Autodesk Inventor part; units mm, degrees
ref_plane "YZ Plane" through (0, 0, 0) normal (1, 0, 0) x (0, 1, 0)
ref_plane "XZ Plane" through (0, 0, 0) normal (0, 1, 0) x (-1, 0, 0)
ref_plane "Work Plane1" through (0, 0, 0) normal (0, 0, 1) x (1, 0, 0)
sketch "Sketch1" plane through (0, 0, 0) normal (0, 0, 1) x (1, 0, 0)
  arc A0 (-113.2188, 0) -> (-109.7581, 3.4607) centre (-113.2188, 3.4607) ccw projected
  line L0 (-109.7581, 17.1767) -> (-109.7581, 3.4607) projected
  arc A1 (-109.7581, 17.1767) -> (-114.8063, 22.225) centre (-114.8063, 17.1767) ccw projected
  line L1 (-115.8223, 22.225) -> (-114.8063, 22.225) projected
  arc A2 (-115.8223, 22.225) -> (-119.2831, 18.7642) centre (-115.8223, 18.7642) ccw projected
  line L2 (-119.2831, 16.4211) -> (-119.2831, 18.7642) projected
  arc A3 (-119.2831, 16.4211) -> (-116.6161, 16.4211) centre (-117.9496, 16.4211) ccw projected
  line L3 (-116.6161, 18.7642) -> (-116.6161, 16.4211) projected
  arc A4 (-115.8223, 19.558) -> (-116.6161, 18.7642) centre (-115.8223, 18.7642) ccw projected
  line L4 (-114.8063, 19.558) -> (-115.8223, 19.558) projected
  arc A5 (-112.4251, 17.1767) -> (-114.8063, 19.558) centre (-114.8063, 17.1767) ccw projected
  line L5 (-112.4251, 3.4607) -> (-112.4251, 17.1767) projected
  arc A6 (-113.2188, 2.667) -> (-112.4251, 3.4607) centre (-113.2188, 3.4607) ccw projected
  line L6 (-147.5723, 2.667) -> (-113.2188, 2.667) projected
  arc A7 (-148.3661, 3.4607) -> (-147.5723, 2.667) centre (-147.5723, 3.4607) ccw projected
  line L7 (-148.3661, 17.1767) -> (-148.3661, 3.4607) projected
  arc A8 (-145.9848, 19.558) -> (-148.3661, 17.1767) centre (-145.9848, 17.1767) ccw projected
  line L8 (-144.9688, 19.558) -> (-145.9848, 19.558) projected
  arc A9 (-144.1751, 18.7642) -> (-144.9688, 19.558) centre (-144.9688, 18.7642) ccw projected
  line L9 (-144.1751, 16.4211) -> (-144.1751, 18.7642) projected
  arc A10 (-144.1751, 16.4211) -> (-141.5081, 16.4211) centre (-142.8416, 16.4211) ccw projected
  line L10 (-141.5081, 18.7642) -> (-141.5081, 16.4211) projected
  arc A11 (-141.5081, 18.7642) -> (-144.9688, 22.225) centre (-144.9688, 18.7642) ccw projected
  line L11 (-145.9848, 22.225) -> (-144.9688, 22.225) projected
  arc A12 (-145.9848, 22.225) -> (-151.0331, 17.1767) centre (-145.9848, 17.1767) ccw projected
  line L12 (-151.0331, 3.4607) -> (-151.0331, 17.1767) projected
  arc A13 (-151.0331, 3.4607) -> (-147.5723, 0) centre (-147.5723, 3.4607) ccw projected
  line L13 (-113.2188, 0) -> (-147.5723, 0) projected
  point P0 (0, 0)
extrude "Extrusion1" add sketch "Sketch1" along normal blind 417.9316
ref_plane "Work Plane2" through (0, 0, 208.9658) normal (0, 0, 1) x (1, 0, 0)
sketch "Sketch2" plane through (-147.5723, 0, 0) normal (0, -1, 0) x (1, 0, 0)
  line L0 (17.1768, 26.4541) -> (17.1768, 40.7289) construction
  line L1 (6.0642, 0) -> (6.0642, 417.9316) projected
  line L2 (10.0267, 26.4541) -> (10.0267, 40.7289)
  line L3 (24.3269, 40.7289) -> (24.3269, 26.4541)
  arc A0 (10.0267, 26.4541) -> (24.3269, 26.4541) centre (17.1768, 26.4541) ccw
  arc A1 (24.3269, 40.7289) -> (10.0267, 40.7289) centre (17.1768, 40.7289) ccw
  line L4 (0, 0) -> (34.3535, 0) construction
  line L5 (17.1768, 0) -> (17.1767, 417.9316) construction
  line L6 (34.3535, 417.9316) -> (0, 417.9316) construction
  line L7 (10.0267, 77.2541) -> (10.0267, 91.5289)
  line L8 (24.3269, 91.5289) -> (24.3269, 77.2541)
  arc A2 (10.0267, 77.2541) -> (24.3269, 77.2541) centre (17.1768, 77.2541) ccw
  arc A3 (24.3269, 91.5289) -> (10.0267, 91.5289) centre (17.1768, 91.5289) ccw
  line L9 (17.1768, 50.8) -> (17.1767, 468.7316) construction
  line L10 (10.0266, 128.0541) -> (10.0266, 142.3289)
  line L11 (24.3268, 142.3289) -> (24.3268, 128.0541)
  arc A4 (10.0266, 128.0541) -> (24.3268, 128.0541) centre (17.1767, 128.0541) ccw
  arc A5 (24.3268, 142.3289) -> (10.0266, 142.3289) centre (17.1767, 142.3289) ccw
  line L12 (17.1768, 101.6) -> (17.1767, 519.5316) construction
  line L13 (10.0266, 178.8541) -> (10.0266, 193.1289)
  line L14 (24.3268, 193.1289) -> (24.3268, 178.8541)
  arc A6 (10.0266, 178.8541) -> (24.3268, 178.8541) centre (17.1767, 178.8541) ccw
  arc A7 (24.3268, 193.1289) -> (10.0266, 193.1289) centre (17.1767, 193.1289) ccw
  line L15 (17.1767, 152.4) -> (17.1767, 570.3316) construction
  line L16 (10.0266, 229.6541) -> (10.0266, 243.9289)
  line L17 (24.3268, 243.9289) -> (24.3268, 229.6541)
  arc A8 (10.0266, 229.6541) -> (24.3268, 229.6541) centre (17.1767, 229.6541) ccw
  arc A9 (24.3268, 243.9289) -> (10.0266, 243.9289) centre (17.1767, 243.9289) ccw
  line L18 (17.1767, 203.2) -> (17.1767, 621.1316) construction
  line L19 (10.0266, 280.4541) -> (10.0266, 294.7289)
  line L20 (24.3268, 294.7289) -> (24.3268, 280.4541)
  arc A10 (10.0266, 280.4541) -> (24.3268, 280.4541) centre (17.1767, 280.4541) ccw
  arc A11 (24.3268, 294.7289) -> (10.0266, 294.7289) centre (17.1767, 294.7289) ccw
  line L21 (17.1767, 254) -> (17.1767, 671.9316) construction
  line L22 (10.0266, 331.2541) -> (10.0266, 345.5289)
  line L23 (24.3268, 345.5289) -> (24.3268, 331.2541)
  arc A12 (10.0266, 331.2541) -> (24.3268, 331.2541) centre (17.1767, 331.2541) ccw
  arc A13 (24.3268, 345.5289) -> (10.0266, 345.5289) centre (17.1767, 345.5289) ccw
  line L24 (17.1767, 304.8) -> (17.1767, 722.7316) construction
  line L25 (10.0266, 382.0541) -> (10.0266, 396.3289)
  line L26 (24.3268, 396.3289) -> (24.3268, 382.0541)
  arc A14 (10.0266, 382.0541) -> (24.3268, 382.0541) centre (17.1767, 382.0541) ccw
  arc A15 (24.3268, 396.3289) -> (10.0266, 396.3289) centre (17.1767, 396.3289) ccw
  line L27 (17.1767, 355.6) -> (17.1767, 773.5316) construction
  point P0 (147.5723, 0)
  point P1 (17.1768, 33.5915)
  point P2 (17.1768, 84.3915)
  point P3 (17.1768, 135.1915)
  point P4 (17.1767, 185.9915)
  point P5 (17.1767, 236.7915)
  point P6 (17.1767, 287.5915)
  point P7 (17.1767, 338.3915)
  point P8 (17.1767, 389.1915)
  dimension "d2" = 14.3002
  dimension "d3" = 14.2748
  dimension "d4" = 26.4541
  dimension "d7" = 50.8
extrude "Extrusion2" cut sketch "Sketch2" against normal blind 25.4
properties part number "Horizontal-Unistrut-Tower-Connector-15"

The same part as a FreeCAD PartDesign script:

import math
import FreeCAD as App
import Part
import Sketcher
from FreeCAD import Vector
Q = App.Units.Quantity

doc = App.newDocument("Part")
body = doc.addObject("PartDesign::Body", "Body")

sketch1 = body.newObject("Sketcher::SketchObject", "Sketch")
sketch1.AttachmentSupport = (doc.getObject("XY_Plane"), [""])
sketch1.MapMode = "FlatFace"
sketch1.addGeometry([
    Part.LineSegment(Vector(-147.6, 0, 0), Vector(-113.2, 0, 0)),
    Part.ArcOfCircle(Part.Circle(Vector(-113.2, 3.5, 0), Vector(0, 0, 1), 3.5), math.radians(-90), math.radians(0)),
    Part.LineSegment(Vector(-109.8, 3.5, 0), Vector(-109.8, 17.2, 0)),
    Part.ArcOfCircle(Part.Circle(Vector(-114.8, 17.2, 0), Vector(0, 0, 1), 5), math.radians(0), math.radians(90)),
    Part.LineSegment(Vector(-114.8, 22.2, 0), Vector(-115.8, 22.2, 0)),
    Part.ArcOfCircle(Part.Circle(Vector(-115.8, 18.8, 0), Vector(0, 0, 1), 3.5), math.radians(90), math.radians(180)),
    Part.LineSegment(Vector(-119.3, 18.8, 0), Vector(-119.3, 16.4, 0)),
    Part.ArcOfCircle(Part.Circle(Vector(-117.9, 16.4, 0), Vector(0, 0, 1), 1.3), math.radians(180), math.radians(360)),
    Part.LineSegment(Vector(-116.6, 16.4, 0), Vector(-116.6, 18.8, 0)),
    Part.ArcOfCircle(Part.Circle(Vector(-115.8, 18.8, 0), Vector(0, 0, 1), 0.8), math.radians(90), math.radians(180)),
    Part.LineSegment(Vector(-115.8, 19.6, 0), Vector(-114.8, 19.6, 0)),
    Part.ArcOfCircle(Part.Circle(Vector(-114.8, 17.2, 0), Vector(0, 0, 1), 2.4), math.radians(0), math.radians(90)),
    Part.LineSegment(Vector(-112.4, 17.2, 0), Vector(-112.4, 3.5, 0)),
    Part.ArcOfCircle(Part.Circle(Vector(-113.2, 3.5, 0), Vector(0, 0, 1), 0.8), math.radians(-90), math.radians(0)),
    Part.LineSegment(Vector(-113.2, 2.7, 0), Vector(-147.6, 2.7, 0)),
    Part.ArcOfCircle(Part.Circle(Vector(-147.6, 3.5, 0), Vector(0, 0, 1), 0.8), math.radians(180), math.radians(270)),
    Part.LineSegment(Vector(-148.4, 3.5, 0), Vector(-148.4, 17.2, 0)),
    Part.ArcOfCircle(Part.Circle(Vector(-146, 17.2, 0), Vector(0, 0, 1), 2.4), math.radians(90), math.radians(180)),
    Part.LineSegment(Vector(-146, 19.6, 0), Vector(-145, 19.6, 0)),
    Part.ArcOfCircle(Part.Circle(Vector(-145, 18.8, 0), Vector(0, 0, 1), 0.8), math.radians(0), math.radians(90)),
    Part.LineSegment(Vector(-144.2, 18.8, 0), Vector(-144.2, 16.4, 0)),
    Part.ArcOfCircle(Part.Circle(Vector(-142.8, 16.4, 0), Vector(0, 0, 1), 1.3), math.radians(180), math.radians(360)),
    Part.LineSegment(Vector(-141.5, 16.4, 0), Vector(-141.5, 18.8, 0)),
    Part.ArcOfCircle(Part.Circle(Vector(-145, 18.8, 0), Vector(0, 0, 1), 3.5), math.radians(0), math.radians(90)),
    Part.LineSegment(Vector(-145, 22.2, 0), Vector(-146, 22.2, 0)),
    Part.ArcOfCircle(Part.Circle(Vector(-146, 17.2, 0), Vector(0, 0, 1), 5), math.radians(90), math.radians(180)),
    Part.LineSegment(Vector(-151, 17.2, 0), Vector(-151, 3.5, 0)),
    Part.ArcOfCircle(Part.Circle(Vector(-147.6, 3.5, 0), Vector(0, 0, 1), 3.5), math.radians(180), math.radians(270)),
], False)
sketch1.addConstraint([
    Sketcher.Constraint("Tangent", 0, 2, 1, 1),
    Sketcher.Constraint("Tangent", 1, 2, 2, 1),
    Sketcher.Constraint("Tangent", 2, 2, 3, 1),
    Sketcher.Constraint("Tangent", 3, 2, 4, 1),
    Sketcher.Constraint("Tangent", 4, 2, 5, 1),
    Sketcher.Constraint("Tangent", 5, 2, 6, 1),
    Sketcher.Constraint("Tangent", 6, 2, 7, 1),
    Sketcher.Constraint("Tangent", 7, 2, 8, 1),
    Sketcher.Constraint("Tangent", 8, 2, 9, 2),
    Sketcher.Constraint("Tangent", 9, 1, 10, 1),
    Sketcher.Constraint("Tangent", 10, 2, 11, 2),
    Sketcher.Constraint("Tangent", 11, 1, 12, 1),
    Sketcher.Constraint("Tangent", 12, 2, 13, 2),
    Sketcher.Constraint("Tangent", 13, 1, 14, 1),
    Sketcher.Constraint("Tangent", 14, 2, 15, 2),
    Sketcher.Constraint("Tangent", 15, 1, 16, 1),
    Sketcher.Constraint("Tangent", 16, 2, 17, 2),
    Sketcher.Constraint("Tangent", 17, 1, 18, 1),
    Sketcher.Constraint("Tangent", 18, 2, 19, 2),
    Sketcher.Constraint("Tangent", 19, 1, 20, 1),
    Sketcher.Constraint("Tangent", 20, 2, 21, 1),
    Sketcher.Constraint("Tangent", 21, 2, 22, 1),
    Sketcher.Constraint("Tangent", 22, 2, 23, 1),
    Sketcher.Constraint("Tangent", 23, 2, 24, 1),
    Sketcher.Constraint("Tangent", 24, 2, 25, 1),
    Sketcher.Constraint("Tangent", 25, 2, 26, 1),
    Sketcher.Constraint("Tangent", 26, 2, 27, 1),
    Sketcher.Constraint("Tangent", 27, 2, 0, 1),
    Sketcher.Constraint("Horizontal", 0),
    Sketcher.Constraint("Vertical", 2),
    Sketcher.Constraint("Horizontal", 4),
    Sketcher.Constraint("Vertical", 6),
    Sketcher.Constraint("Vertical", 8),
    Sketcher.Constraint("Horizontal", 10),
    Sketcher.Constraint("Vertical", 12),
    Sketcher.Constraint("Horizontal", 14),
    Sketcher.Constraint("Vertical", 16),
    Sketcher.Constraint("Horizontal", 18),
    Sketcher.Constraint("Vertical", 20),
    Sketcher.Constraint("Vertical", 22),
    Sketcher.Constraint("Horizontal", 24),
    Sketcher.Constraint("Vertical", 26),
    Sketcher.Constraint("Coincident", 9, 3, 5, 3),
    Sketcher.Constraint("Coincident", 11, 3, 3, 3),
    Sketcher.Constraint("Coincident", 13, 3, 1, 3),
    Sketcher.Constraint("Coincident", 23, 3, 19, 3),
    Sketcher.Constraint("Coincident", 25, 3, 17, 3),
    Sketcher.Constraint("Coincident", 27, 3, 15, 3),
    Sketcher.Constraint("Equal", 1, 5),
    Sketcher.Constraint("Equal", 13, 15),
    Sketcher.Constraint("Equal", 11, 17),
    Sketcher.Constraint("Equal", 15, 19),
    Sketcher.Constraint("PointOnObject", 0, 2, -1),
    Sketcher.Constraint("Horizontal", 11, 3, 17, 3),
    Sketcher.Constraint("Horizontal", 7, 3, 21, 3),
    Sketcher.Constraint("Equal", 10, 18),
    Sketcher.Constraint("Radius", 9, Q("0.031252 in")),
    Sketcher.Constraint("Radius", 11, Q("0.093748 in")),
    Sketcher.Constraint("DistanceX", 4, 2, 4, 1, Q("0.04 in")),
    Sketcher.Constraint("DistanceY", 2, 1, 2, 2, Q("0.54 in")),
    Sketcher.Constraint("Radius", 7, Q("0.0525 in")),
    Sketcher.Constraint("DistanceX", 15, 3, 5, 3, Q("1.25 in")),
    Sketcher.Constraint("DistanceY", 6, 2, 6, 1, Q("2.343 mm")),
    Sketcher.Constraint("DistanceX", 1, 3, -1, 1, Q("113.2188 mm")),
])
pad1 = body.newObject("PartDesign::Pad", "Pad")
pad1.Profile = sketch1
pad1.Length = Q("16.454 in")

sketch2 = body.newObject("Sketcher::SketchObject", "Sketch001")
sketch2.AttachmentSupport = (doc.getObject("XZ_Plane"), [""])
sketch2.MapMode = "FlatFace"
sketch2.addGeometry([
    Part.LineSegment(Vector(-138, 41, 0), Vector(-138, 26, 0)),
    Part.ArcOfCircle(Part.Circle(Vector(-130, 26, 0), Vector(0, 0, 1), 7), math.radians(180), math.radians(360)),
    Part.LineSegment(Vector(-123, 26, 0), Vector(-123, 41, 0)),
    Part.ArcOfCircle(Part.Circle(Vector(-130, 41, 0), Vector(0, 0, 1), 7), math.radians(0), math.radians(180)),
    Part.LineSegment(Vector(-138, 92, 0), Vector(-138, 77, 0)),
    Part.ArcOfCircle(Part.Circle(Vector(-130, 77, 0), Vector(0, 0, 1), 7), math.radians(180), math.radians(360)),
    Part.LineSegment(Vector(-123, 77, 0), Vector(-123, 92, 0)),
    Part.ArcOfCircle(Part.Circle(Vector(-130, 92, 0), Vector(0, 0, 1), 7), math.radians(0), math.radians(180)),
    Part.LineSegment(Vector(-138, 142, 0), Vector(-138, 128, 0)),
    Part.ArcOfCircle(Part.Circle(Vector(-130, 128, 0), Vector(0, 0, 1), 7), math.radians(180), math.radians(360)),
    Part.LineSegment(Vector(-123, 128, 0), Vector(-123, 142, 0)),
    Part.ArcOfCircle(Part.Circle(Vector(-130, 142, 0), Vector(0, 0, 1), 7), math.radians(0), math.radians(180)),
    Part.LineSegment(Vector(-138, 193, 0), Vector(-138, 179, 0)),
    Part.ArcOfCircle(Part.Circle(Vector(-130, 179, 0), Vector(0, 0, 1), 7), math.radians(180), math.radians(360)),
    Part.LineSegment(Vector(-123, 179, 0), Vector(-123, 193, 0)),
    Part.ArcOfCircle(Part.Circle(Vector(-130, 193, 0), Vector(0, 0, 1), 7), math.radians(0), math.radians(180)),
    Part.LineSegment(Vector(-138, 244, 0), Vector(-138, 230, 0)),
    Part.ArcOfCircle(Part.Circle(Vector(-130, 230, 0), Vector(0, 0, 1), 7), math.radians(180), math.radians(360)),
    Part.LineSegment(Vector(-123, 230, 0), Vector(-123, 244, 0)),
    Part.ArcOfCircle(Part.Circle(Vector(-130, 244, 0), Vector(0, 0, 1), 7), math.radians(0), math.radians(180)),
    Part.LineSegment(Vector(-138, 295, 0), Vector(-138, 280, 0)),
    Part.ArcOfCircle(Part.Circle(Vector(-130, 280, 0), Vector(0, 0, 1), 7), math.radians(180), math.radians(360)),
    Part.LineSegment(Vector(-123, 280, 0), Vector(-123, 295, 0)),
    Part.ArcOfCircle(Part.Circle(Vector(-130, 295, 0), Vector(0, 0, 1), 7), math.radians(0), math.radians(180)),
    Part.LineSegment(Vector(-138, 346, 0), Vector(-138, 331, 0)),
    Part.ArcOfCircle(Part.Circle(Vector(-130, 331, 0), Vector(0, 0, 1), 7), math.radians(180), math.radians(360)),
    Part.LineSegment(Vector(-123, 331, 0), Vector(-123, 346, 0)),
    Part.ArcOfCircle(Part.Circle(Vector(-130, 346, 0), Vector(0, 0, 1), 7), math.radians(0), math.radians(180)),
    Part.LineSegment(Vector(-138, 396, 0), Vector(-138, 382, 0)),
    Part.ArcOfCircle(Part.Circle(Vector(-130, 382, 0), Vector(0, 0, 1), 7), math.radians(180), math.radians(360)),
    Part.LineSegment(Vector(-123, 382, 0), Vector(-123, 396, 0)),
    Part.ArcOfCircle(Part.Circle(Vector(-130, 396, 0), Vector(0, 0, 1), 7), math.radians(0), math.radians(180)),
], False)
sketch2.addConstraint([
    Sketcher.Constraint("Tangent", 0, 2, 1, 1),
    Sketcher.Constraint("Tangent", 1, 2, 2, 1),
    Sketcher.Constraint("Tangent", 2, 2, 3, 1),
    Sketcher.Constraint("Tangent", 3, 2, 0, 1),
    Sketcher.Constraint("Tangent", 4, 2, 5, 1),
    Sketcher.Constraint("Tangent", 5, 2, 6, 1),
    Sketcher.Constraint("Tangent", 6, 2, 7, 1),
    Sketcher.Constraint("Tangent", 7, 2, 4, 1),
    Sketcher.Constraint("Tangent", 8, 2, 9, 1),
    Sketcher.Constraint("Tangent", 9, 2, 10, 1),
    Sketcher.Constraint("Tangent", 10, 2, 11, 1),
    Sketcher.Constraint("Tangent", 11, 2, 8, 1),
    Sketcher.Constraint("Tangent", 12, 2, 13, 1),
    Sketcher.Constraint("Tangent", 13, 2, 14, 1),
    Sketcher.Constraint("Tangent", 14, 2, 15, 1),
    Sketcher.Constraint("Tangent", 15, 2, 12, 1),
    Sketcher.Constraint("Tangent", 16, 2, 17, 1),
    Sketcher.Constraint("Tangent", 17, 2, 18, 1),
    Sketcher.Constraint("Tangent", 18, 2, 19, 1),
    Sketcher.Constraint("Tangent", 19, 2, 16, 1),
    Sketcher.Constraint("Tangent", 20, 2, 21, 1),
    Sketcher.Constraint("Tangent", 21, 2, 22, 1),
    Sketcher.Constraint("Tangent", 22, 2, 23, 1),
    Sketcher.Constraint("Tangent", 23, 2, 20, 1),
    Sketcher.Constraint("Tangent", 24, 2, 25, 1),
    Sketcher.Constraint("Tangent", 25, 2, 26, 1),
    Sketcher.Constraint("Tangent", 26, 2, 27, 1),
    Sketcher.Constraint("Tangent", 27, 2, 24, 1),
    Sketcher.Constraint("Tangent", 28, 2, 29, 1),
    Sketcher.Constraint("Tangent", 29, 2, 30, 1),
    Sketcher.Constraint("Tangent", 30, 2, 31, 1),
    Sketcher.Constraint("Tangent", 31, 2, 28, 1),
    Sketcher.Constraint("Vertical", 0),
    Sketcher.Constraint("Vertical", 2),
    Sketcher.Constraint("Vertical", 4),
    Sketcher.Constraint("Vertical", 6),
    Sketcher.Constraint("Vertical", 8),
    Sketcher.Constraint("Vertical", 10),
    Sketcher.Constraint("Vertical", 12),
    Sketcher.Constraint("Vertical", 14),
    Sketcher.Constraint("Vertical", 16),
    Sketcher.Constraint("Vertical", 18),
    Sketcher.Constraint("Vertical", 20),
    Sketcher.Constraint("Vertical", 22),
    Sketcher.Constraint("Vertical", 24),
    Sketcher.Constraint("Vertical", 26),
    Sketcher.Constraint("Vertical", 28),
    Sketcher.Constraint("Vertical", 30),
    Sketcher.Constraint("Equal", 3, 5),
    Sketcher.Constraint("Equal", 7, 9),
    Sketcher.Constraint("Equal", 11, 13),
    Sketcher.Constraint("Equal", 15, 17),
    Sketcher.Constraint("Equal", 19, 21),
    Sketcher.Constraint("Equal", 23, 25),
    Sketcher.Constraint("Equal", 27, 29),
    Sketcher.Constraint("Vertical", 3, 3, 5, 3),
    Sketcher.Constraint("Vertical", 7, 3, 9, 3),
    Sketcher.Constraint("Vertical", 11, 3, 13, 3),
    Sketcher.Constraint("Vertical", 15, 3, 17, 3),
    Sketcher.Constraint("Vertical", 19, 3, 21, 3),
    Sketcher.Constraint("Vertical", 23, 3, 25, 3),
    Sketcher.Constraint("Vertical", 27, 3, 29, 3),
    Sketcher.Constraint("Equal", 2, 4),
    Sketcher.Constraint("Equal", 6, 8),
    Sketcher.Constraint("Equal", 10, 12),
    Sketcher.Constraint("Equal", 14, 16),
    Sketcher.Constraint("Equal", 18, 20),
    Sketcher.Constraint("Equal", 22, 24),
    Sketcher.Constraint("Equal", 26, 28),
    Sketcher.Constraint("DistanceY", 1, 3, 5, 3, Q("2 in")),
    Sketcher.Constraint("DistanceY", 5, 3, 9, 3, Q("2 in")),
    Sketcher.Constraint("DistanceY", 9, 3, 13, 3, Q("2 in")),
    Sketcher.Constraint("DistanceY", 13, 3, 17, 3, Q("2 in")),
    Sketcher.Constraint("DistanceY", 17, 3, 21, 3, Q("2 in")),
    Sketcher.Constraint("DistanceY", 21, 3, 25, 3, Q("2 in")),
    Sketcher.Constraint("DistanceY", 25, 3, 29, 3, Q("2 in")),
    Sketcher.Constraint("Radius", 1, Q("0.2815 in")),
    Sketcher.Constraint("DistanceY", 0, 2, 0, 1, Q("0.562 in")),
    Sketcher.Constraint("DistanceY", -1, 1, 1, 3, Q("1.0415 in")),
    Sketcher.Constraint("DistanceX", 1, 3, -1, 1, Q("130.3955 mm")),
])
pocket1 = body.newObject("PartDesign::Pocket", "Pocket")
pocket1.Profile = sketch2
pocket1.Length = Q("1 in")

doc.recompute()
